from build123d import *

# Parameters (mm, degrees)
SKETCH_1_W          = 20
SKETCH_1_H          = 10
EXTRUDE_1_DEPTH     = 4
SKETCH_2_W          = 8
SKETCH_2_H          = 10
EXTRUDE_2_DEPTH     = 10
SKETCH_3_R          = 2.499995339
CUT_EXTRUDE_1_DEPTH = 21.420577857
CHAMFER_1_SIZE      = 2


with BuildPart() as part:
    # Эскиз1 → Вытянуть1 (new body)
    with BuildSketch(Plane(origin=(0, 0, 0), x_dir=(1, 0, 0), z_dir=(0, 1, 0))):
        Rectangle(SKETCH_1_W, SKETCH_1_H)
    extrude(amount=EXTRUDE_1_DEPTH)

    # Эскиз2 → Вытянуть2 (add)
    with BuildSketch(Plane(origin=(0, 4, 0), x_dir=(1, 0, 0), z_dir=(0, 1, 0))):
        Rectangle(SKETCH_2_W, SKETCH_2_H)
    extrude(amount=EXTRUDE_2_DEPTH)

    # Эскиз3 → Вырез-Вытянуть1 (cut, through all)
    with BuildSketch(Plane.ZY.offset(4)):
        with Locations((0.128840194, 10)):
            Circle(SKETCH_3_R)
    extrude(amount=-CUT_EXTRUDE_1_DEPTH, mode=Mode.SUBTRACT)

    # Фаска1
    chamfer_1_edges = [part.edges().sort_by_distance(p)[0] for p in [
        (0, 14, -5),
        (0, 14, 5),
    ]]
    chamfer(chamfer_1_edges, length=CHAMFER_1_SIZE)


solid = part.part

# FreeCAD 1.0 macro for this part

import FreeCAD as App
import Part
import Sketcher

V = App.Vector


def edges_at(feature, points):
    """Names of the edges that pass closest to the given points."""
    edges = feature.Shape.Edges
    near = lambda p: min(range(len(edges)), key=lambda i: edges[i].distToShape(Part.Vertex(*p))[0])
    return sorted({f"Edge{near(p) + 1}" for p in points})

doc = App.newDocument("Part")
body = doc.addObject("PartDesign::Body", "Body")

sketch1 = body.newObject("Sketcher::SketchObject", "Sketch")
sketch1.AttachmentSupport = (doc.getObject("XZ_Plane"), [""])
sketch1.MapMode = "FlatFace"
sketch1.addGeometry([
    Part.LineSegment(V(-10, -5, 0), V(-10, 5, 0)),
    Part.LineSegment(V(-10, 5, 0), V(10, 5, 0)),
    Part.LineSegment(V(10, 5, 0), V(10, -5, 0)),
    Part.LineSegment(V(10, -5, 0), V(-10, -5, 0)),
], False)
sketch1.addConstraint([
    Sketcher.Constraint("Coincident", 0, 2, 1, 1),
    Sketcher.Constraint("Coincident", 1, 2, 2, 1),
    Sketcher.Constraint("Coincident", 2, 2, 3, 1),
    Sketcher.Constraint("Coincident", 3, 2, 0, 1),
    Sketcher.Constraint("Vertical", 0),
    Sketcher.Constraint("Horizontal", 1),
    Sketcher.Constraint("Vertical", 2),
    Sketcher.Constraint("Horizontal", 3),
    Sketcher.Constraint("Symmetric", 0, 2, 2, 2, -1, 1),
    Sketcher.Constraint("DistanceX", 1, 1, 1, 2, 20.0),
    Sketcher.Constraint("DistanceY", 0, 1, 0, 2, 10.0),
])
pad1 = body.newObject("PartDesign::Pad", "Pad")
pad1.Profile = sketch1
pad1.Length = 4
pad1.Reversed = True

sketch2 = body.newObject("Sketcher::SketchObject", "Sketch001")
sketch2.AttachmentSupport = (doc.getObject("XZ_Plane"), [""])
sketch2.MapMode = "FlatFace"
sketch2.AttachmentOffset = App.Placement(V(0, 0, -4), App.Rotation())
sketch2.addGeometry([
    Part.LineSegment(V(-4, -5, 0), V(-4, 5, 0)),
    Part.LineSegment(V(-4, 5, 0), V(4, 5, 0)),
    Part.LineSegment(V(4, 5, 0), V(4, -5, 0)),
    Part.LineSegment(V(4, -5, 0), V(-4, -5, 0)),
], False)
sketch2.addConstraint([
    Sketcher.Constraint("Coincident", 0, 2, 1, 1),
    Sketcher.Constraint("Coincident", 1, 2, 2, 1),
    Sketcher.Constraint("Coincident", 2, 2, 3, 1),
    Sketcher.Constraint("Coincident", 3, 2, 0, 1),
    Sketcher.Constraint("Vertical", 0),
    Sketcher.Constraint("Horizontal", 1),
    Sketcher.Constraint("Vertical", 2),
    Sketcher.Constraint("Horizontal", 3),
    Sketcher.Constraint("Symmetric", 0, 2, 2, 2, -1, 1),
    Sketcher.Constraint("DistanceX", 1, 1, 1, 2, 8.0),
    Sketcher.Constraint("DistanceY", 0, 1, 0, 2, 10.0),
])
pad2 = body.newObject("PartDesign::Pad", "Pad001")
pad2.Profile = sketch2
pad2.Length = 10
pad2.Reversed = True

sketch3 = body.newObject("Sketcher::SketchObject", "Sketch002")
sketch3.AttachmentSupport = (doc.getObject("YZ_Plane"), [""])
sketch3.MapMode = "FlatFace"
sketch3.AttachmentOffset = App.Placement(V(0, 0, -4), App.Rotation())
sketch3.addGeometry(Part.Circle(V(10, 0.12884, 0), V(0, 0, 1), 2.499995), False)
sketch3.addConstraint([
    Sketcher.Constraint("DistanceX", -1, 1, 0, 3, 10.0),
    Sketcher.Constraint("Diameter", 0, 4.999991),
    Sketcher.Constraint("DistanceY", -1, 1, 0, 3, 0.12884),
])
pocket1 = body.newObject("PartDesign::Pocket", "Pocket")
pocket1.Profile = sketch3
pocket1.Type = "ThroughAll"
pocket1.Reversed = True
doc.recompute()

chamfer = body.newObject("PartDesign::Chamfer", "Chamfer")
chamfer.Base = (pocket1, edges_at(pocket1, [(0, 14, -5), (0, 14, 5)]))
chamfer.Size = 2

doc.recompute()
